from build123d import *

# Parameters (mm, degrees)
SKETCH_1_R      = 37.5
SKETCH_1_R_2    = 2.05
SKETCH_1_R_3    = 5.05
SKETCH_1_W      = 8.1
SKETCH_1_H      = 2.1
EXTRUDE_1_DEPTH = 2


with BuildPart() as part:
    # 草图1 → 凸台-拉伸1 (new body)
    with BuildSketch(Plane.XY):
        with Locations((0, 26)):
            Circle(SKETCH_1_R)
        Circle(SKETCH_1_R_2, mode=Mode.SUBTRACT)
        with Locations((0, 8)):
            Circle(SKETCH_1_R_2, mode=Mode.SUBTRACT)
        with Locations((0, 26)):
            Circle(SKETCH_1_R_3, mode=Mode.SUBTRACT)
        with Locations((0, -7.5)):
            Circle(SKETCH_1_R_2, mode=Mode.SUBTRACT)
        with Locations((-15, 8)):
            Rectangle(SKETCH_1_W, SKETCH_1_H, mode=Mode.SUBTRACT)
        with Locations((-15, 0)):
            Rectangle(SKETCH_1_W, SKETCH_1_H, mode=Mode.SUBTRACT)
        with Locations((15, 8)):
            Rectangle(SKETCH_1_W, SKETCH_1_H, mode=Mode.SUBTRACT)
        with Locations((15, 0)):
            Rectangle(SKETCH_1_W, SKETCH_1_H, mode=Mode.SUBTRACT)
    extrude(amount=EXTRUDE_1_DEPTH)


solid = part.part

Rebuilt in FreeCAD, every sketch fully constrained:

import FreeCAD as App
import Part
import Sketcher


def add_polygon(sketch, points):
    """Adds a closed chain of lines whose ends are joined by coincident constraints."""
    first, n = sketch.GeometryCount, len(points)
    for a, b in zip(points, points[1:] + points[:1]):
        sketch.addGeometry(Part.LineSegment(App.Vector(*a, 0), App.Vector(*b, 0)), False)
    for i in range(n):
        sketch.addConstraint(Sketcher.Constraint("Coincident", first + i, 2, first + (i + 1) % n, 1))

doc = App.newDocument("Part")
params = doc.addObject("Spreadsheet::Sheet", "Params")
for row, (alias, value) in enumerate([
    ("sketch1_diameter", "75 mm"),
    ("sketch1_diameter2", "4.1 mm"),
    ("sketch1_diameter3", "10.1 mm"),
    ("sketch1_width", "8.1 mm"),
    ("sketch1_height", "2.1 mm"),
    ("pad1_length", "2 mm"),
], start=1):
    params.set(f"A{row}", alias)
    params.set(f"B{row}", "=" + value)
    params.setAlias(f"B{row}", alias)

body = doc.addObject("PartDesign::Body", "Body")

# Sketch on XY plane
sketch1 = body.newObject("Sketcher::SketchObject", "Sketch")
sketch1.AttachmentSupport = (doc.getObject("XY_Plane"), [""])
sketch1.MapMode = "FlatFace"
sketch1.addGeometry(Part.Circle(App.Vector(0, 26, 0), App.Vector(0, 0, 1), 37.5), False)  # 0
add_polygon(sketch1, [(-10.95, -1.05), (-19.05, -1.05), (-19.05, 1.05), (-10.95, 1.05)])  # lines 1-4
add_polygon(sketch1, [(-10.95, 6.95), (-19.05, 6.95), (-19.05, 9.05), (-10.95, 9.05)])  # lines 5-8
sketch1.addGeometry(Part.Circle(App.Vector(0, -7.5, 0), App.Vector(0, 0, 1), 2.05), False)  # 9
sketch1.addGeometry(Part.Circle(App.Vector(0, 0, 0), App.Vector(0, 0, 1), 2.05), False)  # 10
add_polygon(sketch1, [(19.05, -1.05), (10.95, -1.05), (10.95, 1.05), (19.05, 1.05)])  # lines 11-14
sketch1.addGeometry(Part.Circle(App.Vector(0, 8, 0), App.Vector(0, 0, 1), 2.05), False)  # 15
add_polygon(sketch1, [(19.05, 6.95), (10.95, 6.95), (10.95, 9.05), (19.05, 9.05)])  # lines 16-19
sketch1.addGeometry(Part.Circle(App.Vector(0, 26, 0), App.Vector(0, 0, 1), 5.05), False)  # 20
sketch1.addConstraint(Sketcher.Constraint("Horizontal", 1))
sketch1.addConstraint(Sketcher.Constraint("Vertical", 2))
sketch1.addConstraint(Sketcher.Constraint("Horizontal", 3))
sketch1.addConstraint(Sketcher.Constraint("Vertical", 4))
sketch1.addConstraint(Sketcher.Constraint("Horizontal", 5))
sketch1.addConstraint(Sketcher.Constraint("Vertical", 6))
sketch1.addConstraint(Sketcher.Constraint("Horizontal", 7))
sketch1.addConstraint(Sketcher.Constraint("Vertical", 8))
sketch1.addConstraint(Sketcher.Constraint("Horizontal", 11))
sketch1.addConstraint(Sketcher.Constraint("Vertical", 12))
sketch1.addConstraint(Sketcher.Constraint("Horizontal", 13))
sketch1.addConstraint(Sketcher.Constraint("Vertical", 14))
sketch1.addConstraint(Sketcher.Constraint("Horizontal", 16))
sketch1.addConstraint(Sketcher.Constraint("Vertical", 17))
sketch1.addConstraint(Sketcher.Constraint("Horizontal", 18))
sketch1.addConstraint(Sketcher.Constraint("Vertical", 19))
sketch1.addConstraint(Sketcher.Constraint("Coincident", 10, 3, -1, 1))
sketch1.addConstraint(Sketcher.Constraint("Coincident", 20, 3, 0, 3))
sketch1.addConstraint(Sketcher.Constraint("Equal", 9, 10))
sketch1.addConstraint(Sketcher.Constraint("Equal", 10, 15))
sketch1.addConstraint(Sketcher.Constraint("Symmetric", 3, 2, 11, 2, -1, 1))
sketch1.addConstraint(Sketcher.Constraint("Symmetric", 1, 2, 13, 2, -1, 1))
sketch1.addConstraint(Sketcher.Constraint("Symmetric", 8, 2, 16, 2, -2))
sketch1.addConstraint(Sketcher.Constraint("Symmetric", 6, 2, 18, 2, -2))
sketch1.addConstraint(Sketcher.Constraint("PointOnObject", 0, 3, -2))
sketch1.addConstraint(Sketcher.Constraint("PointOnObject", 9, 3, -2))
sketch1.addConstraint(Sketcher.Constraint("PointOnObject", 15, 3, -2))
sketch1.addConstraint(Sketcher.Constraint("Horizontal", 4, 2, 11, 2))
sketch1.addConstraint(Sketcher.Constraint("Vertical", 2, 2, 5, 2))
sketch1.addConstraint(Sketcher.Constraint("Vertical", 4, 2, 7, 2))
sketch1.addConstraint(Sketcher.Constraint("Equal", 4, 6))
sketch1.addConstraint(Sketcher.Constraint("Diameter", 0, 75.0))
sketch1.addConstraint(Sketcher.Constraint("Diameter", 9, 4.1))
sketch1.addConstraint(Sketcher.Constraint("Diameter", 20, 10.1))
sketch1.addConstraint(Sketcher.Constraint("DistanceX", 1, 2, 1, 1, 8.1))
sketch1.addConstraint(Sketcher.Constraint("DistanceY", 2, 1, 2, 2, 2.1))
sketch1.addConstraint(Sketcher.Constraint("DistanceY", -1, 1, 0, 3, 26.0))
sketch1.addConstraint(Sketcher.Constraint("DistanceY", -1, 1, 15, 3, 8.0))
sketch1.addConstraint(Sketcher.Constraint("DistanceY", 1, 2, 5, 2, 8.0))
sketch1.addConstraint(Sketcher.Constraint("DistanceY", 9, 3, -1, 1, 7.5))
sketch1.addConstraint(Sketcher.Constraint("DistanceX", 4, 2, 11, 2, 21.9))
sketch1.setExpression("Constraints[47]", "Params.sketch1_diameter")
sketch1.setExpression("Constraints[48]", "Params.sketch1_diameter2")
sketch1.setExpression("Constraints[49]", "Params.sketch1_diameter3")
sketch1.setExpression("Constraints[50]", "Params.sketch1_width")
sketch1.setExpression("Constraints[51]", "Params.sketch1_height")
pad1 = body.newObject("PartDesign::Pad", "Pad")
pad1.Profile = sketch1
pad1.setExpression("Length", "Params.pad1_length")

doc.recompute()
